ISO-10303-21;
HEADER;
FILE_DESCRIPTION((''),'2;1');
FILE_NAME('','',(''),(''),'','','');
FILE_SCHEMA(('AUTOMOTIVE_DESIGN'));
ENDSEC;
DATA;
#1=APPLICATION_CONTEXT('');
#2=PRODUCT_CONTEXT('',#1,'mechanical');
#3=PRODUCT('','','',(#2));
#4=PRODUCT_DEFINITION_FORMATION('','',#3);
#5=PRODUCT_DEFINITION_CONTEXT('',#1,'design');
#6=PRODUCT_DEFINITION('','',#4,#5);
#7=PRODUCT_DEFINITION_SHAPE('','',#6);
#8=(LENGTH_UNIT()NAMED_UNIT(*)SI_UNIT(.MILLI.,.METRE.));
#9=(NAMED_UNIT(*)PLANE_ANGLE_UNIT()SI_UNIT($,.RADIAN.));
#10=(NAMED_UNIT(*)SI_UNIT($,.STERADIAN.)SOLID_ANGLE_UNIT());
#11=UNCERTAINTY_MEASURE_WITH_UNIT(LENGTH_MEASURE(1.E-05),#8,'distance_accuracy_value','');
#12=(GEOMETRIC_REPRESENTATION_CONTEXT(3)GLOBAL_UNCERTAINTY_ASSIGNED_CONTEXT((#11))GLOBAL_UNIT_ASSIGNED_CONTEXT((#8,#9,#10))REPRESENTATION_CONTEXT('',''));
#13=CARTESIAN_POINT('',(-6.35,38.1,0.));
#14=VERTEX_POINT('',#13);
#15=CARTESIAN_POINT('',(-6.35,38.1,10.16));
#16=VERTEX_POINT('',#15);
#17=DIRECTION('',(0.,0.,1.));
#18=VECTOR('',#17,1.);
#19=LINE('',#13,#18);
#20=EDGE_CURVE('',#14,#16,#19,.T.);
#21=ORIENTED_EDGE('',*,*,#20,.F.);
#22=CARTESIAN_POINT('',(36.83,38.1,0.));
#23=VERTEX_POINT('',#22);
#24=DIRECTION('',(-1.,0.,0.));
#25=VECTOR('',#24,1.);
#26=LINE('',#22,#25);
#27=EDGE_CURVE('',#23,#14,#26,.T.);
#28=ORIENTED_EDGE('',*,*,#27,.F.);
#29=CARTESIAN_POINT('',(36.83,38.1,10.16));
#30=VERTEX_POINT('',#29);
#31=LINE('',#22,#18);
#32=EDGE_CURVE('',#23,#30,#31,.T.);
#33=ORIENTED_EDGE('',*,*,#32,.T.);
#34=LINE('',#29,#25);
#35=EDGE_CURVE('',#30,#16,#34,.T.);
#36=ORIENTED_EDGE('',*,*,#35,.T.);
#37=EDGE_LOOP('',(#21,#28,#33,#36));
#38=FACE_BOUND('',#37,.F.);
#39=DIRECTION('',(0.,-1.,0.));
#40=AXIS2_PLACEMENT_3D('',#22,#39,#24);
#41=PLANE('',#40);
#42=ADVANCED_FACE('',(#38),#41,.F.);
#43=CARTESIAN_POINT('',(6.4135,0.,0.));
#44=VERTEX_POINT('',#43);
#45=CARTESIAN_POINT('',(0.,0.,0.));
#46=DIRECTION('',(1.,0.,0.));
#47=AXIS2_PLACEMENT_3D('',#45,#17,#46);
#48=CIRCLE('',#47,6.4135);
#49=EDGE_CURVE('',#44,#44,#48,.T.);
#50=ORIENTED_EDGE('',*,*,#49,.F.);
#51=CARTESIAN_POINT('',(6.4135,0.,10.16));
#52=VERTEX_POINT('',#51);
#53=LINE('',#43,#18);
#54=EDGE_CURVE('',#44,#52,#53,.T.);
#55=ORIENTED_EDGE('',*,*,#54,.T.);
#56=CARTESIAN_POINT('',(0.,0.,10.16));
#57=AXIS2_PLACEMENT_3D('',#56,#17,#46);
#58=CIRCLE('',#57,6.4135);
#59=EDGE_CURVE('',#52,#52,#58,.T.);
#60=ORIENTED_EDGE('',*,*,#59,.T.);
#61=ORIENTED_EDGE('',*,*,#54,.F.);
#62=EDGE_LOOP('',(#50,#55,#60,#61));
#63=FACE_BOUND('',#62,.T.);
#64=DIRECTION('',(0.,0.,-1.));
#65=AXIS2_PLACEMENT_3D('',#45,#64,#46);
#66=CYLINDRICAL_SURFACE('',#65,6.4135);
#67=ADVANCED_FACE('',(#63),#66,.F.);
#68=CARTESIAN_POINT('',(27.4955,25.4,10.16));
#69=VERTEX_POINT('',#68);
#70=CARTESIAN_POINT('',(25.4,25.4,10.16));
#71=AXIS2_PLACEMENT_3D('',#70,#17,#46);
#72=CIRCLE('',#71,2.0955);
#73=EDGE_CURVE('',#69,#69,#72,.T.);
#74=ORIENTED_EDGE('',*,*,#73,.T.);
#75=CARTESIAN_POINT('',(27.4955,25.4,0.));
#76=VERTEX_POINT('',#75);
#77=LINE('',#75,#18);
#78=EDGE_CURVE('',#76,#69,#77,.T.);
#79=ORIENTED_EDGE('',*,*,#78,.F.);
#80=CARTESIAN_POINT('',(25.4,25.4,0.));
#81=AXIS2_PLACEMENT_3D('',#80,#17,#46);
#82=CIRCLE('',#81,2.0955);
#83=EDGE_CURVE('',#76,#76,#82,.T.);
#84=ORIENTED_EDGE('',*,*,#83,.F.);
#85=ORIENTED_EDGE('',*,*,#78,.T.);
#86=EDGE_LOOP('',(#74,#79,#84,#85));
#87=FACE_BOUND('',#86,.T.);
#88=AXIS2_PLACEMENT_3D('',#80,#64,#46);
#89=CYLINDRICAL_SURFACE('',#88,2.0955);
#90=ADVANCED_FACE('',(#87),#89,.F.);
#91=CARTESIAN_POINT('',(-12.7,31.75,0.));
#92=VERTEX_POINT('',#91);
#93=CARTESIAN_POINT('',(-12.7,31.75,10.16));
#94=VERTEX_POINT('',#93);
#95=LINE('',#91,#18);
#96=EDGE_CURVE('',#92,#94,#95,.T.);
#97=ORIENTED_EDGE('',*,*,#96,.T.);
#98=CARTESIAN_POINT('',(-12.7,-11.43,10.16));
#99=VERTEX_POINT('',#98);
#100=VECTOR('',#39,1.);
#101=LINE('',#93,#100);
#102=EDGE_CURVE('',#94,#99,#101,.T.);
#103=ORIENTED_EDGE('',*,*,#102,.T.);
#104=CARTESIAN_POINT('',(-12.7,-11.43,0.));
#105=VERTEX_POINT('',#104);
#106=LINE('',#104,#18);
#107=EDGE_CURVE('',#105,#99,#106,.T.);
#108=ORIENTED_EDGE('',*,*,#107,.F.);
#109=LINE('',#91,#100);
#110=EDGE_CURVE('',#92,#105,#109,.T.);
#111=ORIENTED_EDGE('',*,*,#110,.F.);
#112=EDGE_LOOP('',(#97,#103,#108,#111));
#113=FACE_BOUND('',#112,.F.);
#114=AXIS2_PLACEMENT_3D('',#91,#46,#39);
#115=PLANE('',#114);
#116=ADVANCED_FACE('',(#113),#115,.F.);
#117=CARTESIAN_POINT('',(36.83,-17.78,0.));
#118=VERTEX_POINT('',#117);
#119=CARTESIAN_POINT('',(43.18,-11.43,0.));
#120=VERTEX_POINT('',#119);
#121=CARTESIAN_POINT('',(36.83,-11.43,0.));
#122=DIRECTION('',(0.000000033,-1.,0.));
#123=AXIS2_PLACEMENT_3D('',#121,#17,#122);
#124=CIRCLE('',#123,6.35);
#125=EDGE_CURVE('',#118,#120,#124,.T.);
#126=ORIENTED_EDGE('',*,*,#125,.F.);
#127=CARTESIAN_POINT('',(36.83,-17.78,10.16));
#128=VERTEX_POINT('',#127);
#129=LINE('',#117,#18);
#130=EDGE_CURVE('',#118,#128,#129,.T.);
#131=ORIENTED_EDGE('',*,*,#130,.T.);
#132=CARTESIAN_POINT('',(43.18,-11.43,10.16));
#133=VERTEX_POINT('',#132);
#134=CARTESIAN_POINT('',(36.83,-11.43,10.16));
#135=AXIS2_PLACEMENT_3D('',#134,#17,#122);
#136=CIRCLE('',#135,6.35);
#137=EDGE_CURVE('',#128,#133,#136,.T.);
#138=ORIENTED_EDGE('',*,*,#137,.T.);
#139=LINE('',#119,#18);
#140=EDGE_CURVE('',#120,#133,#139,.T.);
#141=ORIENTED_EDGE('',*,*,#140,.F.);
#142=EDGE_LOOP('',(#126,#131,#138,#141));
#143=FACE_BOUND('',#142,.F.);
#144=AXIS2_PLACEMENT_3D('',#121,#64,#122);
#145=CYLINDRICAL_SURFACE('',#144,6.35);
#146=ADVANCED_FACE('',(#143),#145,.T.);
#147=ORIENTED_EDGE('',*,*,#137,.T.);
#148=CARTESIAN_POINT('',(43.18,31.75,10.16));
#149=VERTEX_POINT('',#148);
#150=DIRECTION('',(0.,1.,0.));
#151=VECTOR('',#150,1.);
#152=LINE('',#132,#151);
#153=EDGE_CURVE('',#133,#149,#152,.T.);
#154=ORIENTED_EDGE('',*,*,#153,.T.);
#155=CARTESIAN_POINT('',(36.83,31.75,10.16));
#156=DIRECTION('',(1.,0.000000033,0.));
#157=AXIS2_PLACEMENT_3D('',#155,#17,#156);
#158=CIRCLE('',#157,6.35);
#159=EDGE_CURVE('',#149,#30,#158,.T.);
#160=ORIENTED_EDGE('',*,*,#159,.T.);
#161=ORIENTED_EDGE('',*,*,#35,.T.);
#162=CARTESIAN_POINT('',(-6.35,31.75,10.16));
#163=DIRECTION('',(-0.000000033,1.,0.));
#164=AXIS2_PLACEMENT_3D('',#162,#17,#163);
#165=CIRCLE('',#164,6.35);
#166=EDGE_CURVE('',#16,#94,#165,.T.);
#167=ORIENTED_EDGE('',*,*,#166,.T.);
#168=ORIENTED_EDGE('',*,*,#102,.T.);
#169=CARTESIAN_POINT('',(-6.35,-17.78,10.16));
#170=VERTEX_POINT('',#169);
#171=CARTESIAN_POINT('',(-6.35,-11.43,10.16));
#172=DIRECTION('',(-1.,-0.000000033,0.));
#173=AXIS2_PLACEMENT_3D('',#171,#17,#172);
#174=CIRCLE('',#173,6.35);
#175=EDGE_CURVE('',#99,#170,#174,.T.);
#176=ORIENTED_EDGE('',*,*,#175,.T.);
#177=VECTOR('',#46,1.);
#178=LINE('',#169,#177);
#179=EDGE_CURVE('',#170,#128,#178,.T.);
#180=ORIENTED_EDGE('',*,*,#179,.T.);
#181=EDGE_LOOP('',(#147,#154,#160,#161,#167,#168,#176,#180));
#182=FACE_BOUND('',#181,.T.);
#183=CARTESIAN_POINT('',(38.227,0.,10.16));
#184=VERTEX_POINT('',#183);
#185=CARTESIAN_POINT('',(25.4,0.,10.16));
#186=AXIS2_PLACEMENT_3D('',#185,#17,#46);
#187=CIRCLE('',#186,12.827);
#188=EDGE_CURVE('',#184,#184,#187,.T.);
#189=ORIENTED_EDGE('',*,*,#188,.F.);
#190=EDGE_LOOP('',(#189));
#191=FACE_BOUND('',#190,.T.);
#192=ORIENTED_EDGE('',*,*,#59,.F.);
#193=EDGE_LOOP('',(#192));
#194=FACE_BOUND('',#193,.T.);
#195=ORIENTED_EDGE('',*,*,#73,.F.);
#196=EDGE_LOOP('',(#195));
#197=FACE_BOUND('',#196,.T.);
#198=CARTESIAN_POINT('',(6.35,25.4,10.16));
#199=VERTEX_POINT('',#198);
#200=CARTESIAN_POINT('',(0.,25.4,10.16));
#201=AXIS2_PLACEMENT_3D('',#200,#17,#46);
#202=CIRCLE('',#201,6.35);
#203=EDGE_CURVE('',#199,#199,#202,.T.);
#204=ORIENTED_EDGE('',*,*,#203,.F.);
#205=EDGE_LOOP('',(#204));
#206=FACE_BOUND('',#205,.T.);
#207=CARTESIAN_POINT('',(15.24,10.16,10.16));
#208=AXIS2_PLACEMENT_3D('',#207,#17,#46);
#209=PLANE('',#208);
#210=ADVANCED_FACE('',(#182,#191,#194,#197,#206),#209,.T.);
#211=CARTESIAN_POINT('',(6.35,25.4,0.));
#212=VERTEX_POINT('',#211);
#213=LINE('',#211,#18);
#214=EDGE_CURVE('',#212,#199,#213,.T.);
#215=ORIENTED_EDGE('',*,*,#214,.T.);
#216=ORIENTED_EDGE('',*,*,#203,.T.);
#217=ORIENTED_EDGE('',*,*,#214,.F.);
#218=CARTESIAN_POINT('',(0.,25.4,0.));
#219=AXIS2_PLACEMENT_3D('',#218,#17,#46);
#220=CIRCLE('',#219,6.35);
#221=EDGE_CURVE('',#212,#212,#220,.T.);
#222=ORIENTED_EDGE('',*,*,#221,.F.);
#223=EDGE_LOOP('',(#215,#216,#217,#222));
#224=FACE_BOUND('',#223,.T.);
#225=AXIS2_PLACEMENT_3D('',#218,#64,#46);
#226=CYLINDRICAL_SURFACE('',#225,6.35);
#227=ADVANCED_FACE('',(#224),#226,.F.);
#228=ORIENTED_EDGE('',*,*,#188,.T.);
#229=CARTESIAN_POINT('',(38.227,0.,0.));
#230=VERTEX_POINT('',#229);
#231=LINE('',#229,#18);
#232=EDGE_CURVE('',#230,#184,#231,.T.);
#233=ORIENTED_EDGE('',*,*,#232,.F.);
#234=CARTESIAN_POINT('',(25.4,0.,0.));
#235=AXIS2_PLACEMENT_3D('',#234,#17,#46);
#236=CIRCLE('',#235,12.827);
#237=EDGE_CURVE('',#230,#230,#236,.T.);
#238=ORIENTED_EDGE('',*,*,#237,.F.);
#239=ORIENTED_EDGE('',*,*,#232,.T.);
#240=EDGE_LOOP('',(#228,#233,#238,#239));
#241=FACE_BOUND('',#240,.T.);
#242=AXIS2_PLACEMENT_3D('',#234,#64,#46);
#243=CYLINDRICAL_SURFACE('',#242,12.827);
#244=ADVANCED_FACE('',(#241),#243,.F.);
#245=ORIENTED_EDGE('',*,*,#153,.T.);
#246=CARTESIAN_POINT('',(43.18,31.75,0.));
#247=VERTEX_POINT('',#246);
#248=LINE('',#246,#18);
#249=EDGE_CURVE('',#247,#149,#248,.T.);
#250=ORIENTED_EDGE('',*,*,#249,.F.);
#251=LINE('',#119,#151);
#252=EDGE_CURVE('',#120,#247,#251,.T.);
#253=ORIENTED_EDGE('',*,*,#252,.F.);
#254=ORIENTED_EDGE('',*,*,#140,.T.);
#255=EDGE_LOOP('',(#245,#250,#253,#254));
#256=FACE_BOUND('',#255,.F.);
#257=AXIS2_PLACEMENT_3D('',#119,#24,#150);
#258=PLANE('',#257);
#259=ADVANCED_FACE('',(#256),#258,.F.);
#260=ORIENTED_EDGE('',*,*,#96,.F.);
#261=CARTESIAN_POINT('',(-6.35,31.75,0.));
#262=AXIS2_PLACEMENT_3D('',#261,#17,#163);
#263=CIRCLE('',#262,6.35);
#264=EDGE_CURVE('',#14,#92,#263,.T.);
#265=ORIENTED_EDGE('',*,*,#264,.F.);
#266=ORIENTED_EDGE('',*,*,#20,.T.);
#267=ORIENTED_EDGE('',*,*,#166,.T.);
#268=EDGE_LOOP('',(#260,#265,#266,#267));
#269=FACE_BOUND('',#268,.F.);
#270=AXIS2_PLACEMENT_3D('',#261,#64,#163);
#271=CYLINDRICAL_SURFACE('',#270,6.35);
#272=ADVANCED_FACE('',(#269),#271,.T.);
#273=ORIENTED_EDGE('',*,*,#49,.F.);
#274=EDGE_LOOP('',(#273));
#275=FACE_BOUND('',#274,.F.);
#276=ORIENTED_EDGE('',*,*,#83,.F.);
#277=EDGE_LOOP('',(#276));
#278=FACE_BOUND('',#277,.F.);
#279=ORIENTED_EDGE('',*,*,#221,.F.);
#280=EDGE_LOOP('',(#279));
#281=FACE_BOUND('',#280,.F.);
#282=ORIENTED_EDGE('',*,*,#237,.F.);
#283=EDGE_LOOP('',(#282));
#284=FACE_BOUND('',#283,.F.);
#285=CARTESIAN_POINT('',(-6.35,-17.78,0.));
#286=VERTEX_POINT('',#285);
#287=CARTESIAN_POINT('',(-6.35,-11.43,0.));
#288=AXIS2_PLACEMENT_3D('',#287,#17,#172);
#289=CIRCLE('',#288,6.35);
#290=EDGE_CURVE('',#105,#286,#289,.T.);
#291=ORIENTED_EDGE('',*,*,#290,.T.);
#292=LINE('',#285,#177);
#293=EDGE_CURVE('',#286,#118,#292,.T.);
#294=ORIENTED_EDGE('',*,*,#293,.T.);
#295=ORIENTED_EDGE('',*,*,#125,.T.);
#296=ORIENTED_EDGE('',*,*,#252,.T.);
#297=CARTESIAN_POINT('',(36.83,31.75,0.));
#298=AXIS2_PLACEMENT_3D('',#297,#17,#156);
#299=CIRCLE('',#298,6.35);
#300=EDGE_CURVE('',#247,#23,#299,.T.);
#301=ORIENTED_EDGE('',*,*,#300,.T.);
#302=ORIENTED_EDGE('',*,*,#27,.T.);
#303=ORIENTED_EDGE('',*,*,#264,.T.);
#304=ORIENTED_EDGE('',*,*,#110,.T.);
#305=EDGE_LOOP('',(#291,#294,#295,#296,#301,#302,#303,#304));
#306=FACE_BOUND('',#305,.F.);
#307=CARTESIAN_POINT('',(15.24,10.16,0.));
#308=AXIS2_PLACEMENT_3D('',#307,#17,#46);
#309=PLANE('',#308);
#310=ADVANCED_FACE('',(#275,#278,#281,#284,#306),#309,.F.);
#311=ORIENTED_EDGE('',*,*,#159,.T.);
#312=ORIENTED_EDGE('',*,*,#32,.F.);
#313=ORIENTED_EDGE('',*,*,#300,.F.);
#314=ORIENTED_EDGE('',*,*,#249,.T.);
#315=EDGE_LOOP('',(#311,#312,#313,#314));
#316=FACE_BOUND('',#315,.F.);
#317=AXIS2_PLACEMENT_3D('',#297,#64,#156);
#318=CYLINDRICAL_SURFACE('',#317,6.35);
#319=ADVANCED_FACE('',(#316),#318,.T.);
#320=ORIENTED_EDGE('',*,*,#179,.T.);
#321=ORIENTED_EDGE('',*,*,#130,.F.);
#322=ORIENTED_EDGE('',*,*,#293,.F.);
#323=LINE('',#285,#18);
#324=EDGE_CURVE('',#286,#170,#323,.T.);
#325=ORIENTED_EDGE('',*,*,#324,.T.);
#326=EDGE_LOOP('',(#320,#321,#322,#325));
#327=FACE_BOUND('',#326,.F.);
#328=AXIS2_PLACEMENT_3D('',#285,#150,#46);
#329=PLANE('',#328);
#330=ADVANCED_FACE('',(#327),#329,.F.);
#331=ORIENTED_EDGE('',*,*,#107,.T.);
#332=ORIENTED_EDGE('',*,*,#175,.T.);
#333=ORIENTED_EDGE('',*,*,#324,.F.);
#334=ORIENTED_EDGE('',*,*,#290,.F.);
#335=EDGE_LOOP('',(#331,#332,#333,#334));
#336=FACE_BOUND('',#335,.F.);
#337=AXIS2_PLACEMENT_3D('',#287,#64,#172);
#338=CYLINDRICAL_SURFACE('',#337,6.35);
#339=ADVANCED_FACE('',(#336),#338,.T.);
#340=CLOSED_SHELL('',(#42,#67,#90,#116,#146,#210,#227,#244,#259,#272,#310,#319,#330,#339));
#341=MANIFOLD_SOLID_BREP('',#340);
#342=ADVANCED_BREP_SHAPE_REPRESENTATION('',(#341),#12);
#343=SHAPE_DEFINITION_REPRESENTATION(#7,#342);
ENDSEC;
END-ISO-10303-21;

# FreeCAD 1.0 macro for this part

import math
import FreeCAD as App
import Part
import Sketcher
Q = App.Units.Quantity

doc = App.newDocument("Part")
body = doc.addObject("PartDesign::Body", "Body")

# Sketch on XY plane
sketch1 = body.newObject("Sketcher::SketchObject", "Sketch")
sketch1.AttachmentSupport = (doc.getObject("XY_Plane"), [""])
sketch1.MapMode = "FlatFace"
sketch1.addGeometry([
    Part.LineSegment(App.Vector(36.8, 38.1, 0), App.Vector(-6.3, 38.1, 0)),  # 0
    Part.ArcOfCircle(Part.Circle(App.Vector(-6.3, 31.7, 0), App.Vector(0, 0, 1), 6.4), math.radians(90), math.radians(180)),  # 1
    Part.LineSegment(App.Vector(-12.7, 31.8, 0), App.Vector(-12.7, -11.4, 0)),  # 2
    Part.ArcOfCircle(Part.Circle(App.Vector(-6.3, -11.4, 0), App.Vector(0, 0, 1), 6.4), math.radians(-180), math.radians(-90)),  # 3
    Part.LineSegment(App.Vector(-6.3, -17.8, 0), App.Vector(36.8, -17.8, 0)),  # 4
    Part.ArcOfCircle(Part.Circle(App.Vector(36.8, -11.4, 0), App.Vector(0, 0, 1), 6.4), math.radians(-90), math.radians(0)),  # 5
    Part.LineSegment(App.Vector(43.2, -11.4, 0), App.Vector(43.2, 31.8, 0)),  # 6
    Part.ArcOfCircle(Part.Circle(App.Vector(36.8, 31.7, 0), App.Vector(0, 0, 1), 6.4), math.radians(0), math.radians(90)),  # 7
    Part.Circle(App.Vector(0, 0, 0), App.Vector(0, 0, 1), 6.4),  # 8
    Part.Circle(App.Vector(25.4, 0, 0), App.Vector(0, 0, 1), 12.8),  # 9
    Part.Circle(App.Vector(0, 25.4, 0), App.Vector(0, 0, 1), 6.3),  # 10
    Part.Circle(App.Vector(25.4, 25.4, 0), App.Vector(0, 0, 1), 2.1),  # 11
], False)
sketch1.addConstraint([
    Sketcher.Constraint("Tangent", 0, 2, 1, 1),
    Sketcher.Constraint("Tangent", 1, 2, 2, 1),
    Sketcher.Constraint("Tangent", 2, 2, 3, 1),
    Sketcher.Constraint("Tangent", 3, 2, 4, 1),
    Sketcher.Constraint("Tangent", 4, 2, 5, 1),
    Sketcher.Constraint("Tangent", 5, 2, 6, 1),
    Sketcher.Constraint("Tangent", 6, 2, 7, 1),
    Sketcher.Constraint("Tangent", 7, 2, 0, 1),
    Sketcher.Constraint("Horizontal", 0),
    Sketcher.Constraint("Vertical", 2),
    Sketcher.Constraint("Horizontal", 4),
    Sketcher.Constraint("Vertical", 6),
    Sketcher.Constraint("Coincident", 8, 3, -1, 1),
    Sketcher.Constraint("Equal", 1, 3),
    Sketcher.Constraint("Equal", 3, 5),
    Sketcher.Constraint("Equal", 5, 7),
    Sketcher.Constraint("Equal", 7, 10),
    Sketcher.Constraint("PointOnObject", 9, 3, -1),
    Sketcher.Constraint("PointOnObject", 10, 3, -2),
    Sketcher.Constraint("Horizontal", 10, 3, 11, 3),
    Sketcher.Constraint("Vertical", 9, 3, 11, 3),
    Sketcher.Constraint("Equal", 4, 2),
    Sketcher.Constraint("Diameter", 10, Q("0.5 in")),
    Sketcher.Constraint("Diameter", 9, Q("1.01 in")),
    Sketcher.Constraint("Diameter", 8, Q("0.505 in")),
    Sketcher.Constraint("Diameter", 11, Q("0.165 in")),
    Sketcher.Constraint("DistanceX", 0, 2, 0, 1, Q("1.7 in")),
    Sketcher.Constraint("DistanceX", -1, 1, 9, 3, Q("1 in")),
    Sketcher.Constraint("DistanceY", -1, 1, 10, 3, Q("1 in")),
    Sketcher.Constraint("DistanceY", -1, 1, 0, 2, Q("1.5 in")),
    Sketcher.Constraint("DistanceX", 1, 2, -1, 1, Q("0.5 in")),
])
pad1 = body.newObject("PartDesign::Pad", "Pad")
pad1.Profile = sketch1
pad1.Length = Q("0.4 in")

doc.recompute()
